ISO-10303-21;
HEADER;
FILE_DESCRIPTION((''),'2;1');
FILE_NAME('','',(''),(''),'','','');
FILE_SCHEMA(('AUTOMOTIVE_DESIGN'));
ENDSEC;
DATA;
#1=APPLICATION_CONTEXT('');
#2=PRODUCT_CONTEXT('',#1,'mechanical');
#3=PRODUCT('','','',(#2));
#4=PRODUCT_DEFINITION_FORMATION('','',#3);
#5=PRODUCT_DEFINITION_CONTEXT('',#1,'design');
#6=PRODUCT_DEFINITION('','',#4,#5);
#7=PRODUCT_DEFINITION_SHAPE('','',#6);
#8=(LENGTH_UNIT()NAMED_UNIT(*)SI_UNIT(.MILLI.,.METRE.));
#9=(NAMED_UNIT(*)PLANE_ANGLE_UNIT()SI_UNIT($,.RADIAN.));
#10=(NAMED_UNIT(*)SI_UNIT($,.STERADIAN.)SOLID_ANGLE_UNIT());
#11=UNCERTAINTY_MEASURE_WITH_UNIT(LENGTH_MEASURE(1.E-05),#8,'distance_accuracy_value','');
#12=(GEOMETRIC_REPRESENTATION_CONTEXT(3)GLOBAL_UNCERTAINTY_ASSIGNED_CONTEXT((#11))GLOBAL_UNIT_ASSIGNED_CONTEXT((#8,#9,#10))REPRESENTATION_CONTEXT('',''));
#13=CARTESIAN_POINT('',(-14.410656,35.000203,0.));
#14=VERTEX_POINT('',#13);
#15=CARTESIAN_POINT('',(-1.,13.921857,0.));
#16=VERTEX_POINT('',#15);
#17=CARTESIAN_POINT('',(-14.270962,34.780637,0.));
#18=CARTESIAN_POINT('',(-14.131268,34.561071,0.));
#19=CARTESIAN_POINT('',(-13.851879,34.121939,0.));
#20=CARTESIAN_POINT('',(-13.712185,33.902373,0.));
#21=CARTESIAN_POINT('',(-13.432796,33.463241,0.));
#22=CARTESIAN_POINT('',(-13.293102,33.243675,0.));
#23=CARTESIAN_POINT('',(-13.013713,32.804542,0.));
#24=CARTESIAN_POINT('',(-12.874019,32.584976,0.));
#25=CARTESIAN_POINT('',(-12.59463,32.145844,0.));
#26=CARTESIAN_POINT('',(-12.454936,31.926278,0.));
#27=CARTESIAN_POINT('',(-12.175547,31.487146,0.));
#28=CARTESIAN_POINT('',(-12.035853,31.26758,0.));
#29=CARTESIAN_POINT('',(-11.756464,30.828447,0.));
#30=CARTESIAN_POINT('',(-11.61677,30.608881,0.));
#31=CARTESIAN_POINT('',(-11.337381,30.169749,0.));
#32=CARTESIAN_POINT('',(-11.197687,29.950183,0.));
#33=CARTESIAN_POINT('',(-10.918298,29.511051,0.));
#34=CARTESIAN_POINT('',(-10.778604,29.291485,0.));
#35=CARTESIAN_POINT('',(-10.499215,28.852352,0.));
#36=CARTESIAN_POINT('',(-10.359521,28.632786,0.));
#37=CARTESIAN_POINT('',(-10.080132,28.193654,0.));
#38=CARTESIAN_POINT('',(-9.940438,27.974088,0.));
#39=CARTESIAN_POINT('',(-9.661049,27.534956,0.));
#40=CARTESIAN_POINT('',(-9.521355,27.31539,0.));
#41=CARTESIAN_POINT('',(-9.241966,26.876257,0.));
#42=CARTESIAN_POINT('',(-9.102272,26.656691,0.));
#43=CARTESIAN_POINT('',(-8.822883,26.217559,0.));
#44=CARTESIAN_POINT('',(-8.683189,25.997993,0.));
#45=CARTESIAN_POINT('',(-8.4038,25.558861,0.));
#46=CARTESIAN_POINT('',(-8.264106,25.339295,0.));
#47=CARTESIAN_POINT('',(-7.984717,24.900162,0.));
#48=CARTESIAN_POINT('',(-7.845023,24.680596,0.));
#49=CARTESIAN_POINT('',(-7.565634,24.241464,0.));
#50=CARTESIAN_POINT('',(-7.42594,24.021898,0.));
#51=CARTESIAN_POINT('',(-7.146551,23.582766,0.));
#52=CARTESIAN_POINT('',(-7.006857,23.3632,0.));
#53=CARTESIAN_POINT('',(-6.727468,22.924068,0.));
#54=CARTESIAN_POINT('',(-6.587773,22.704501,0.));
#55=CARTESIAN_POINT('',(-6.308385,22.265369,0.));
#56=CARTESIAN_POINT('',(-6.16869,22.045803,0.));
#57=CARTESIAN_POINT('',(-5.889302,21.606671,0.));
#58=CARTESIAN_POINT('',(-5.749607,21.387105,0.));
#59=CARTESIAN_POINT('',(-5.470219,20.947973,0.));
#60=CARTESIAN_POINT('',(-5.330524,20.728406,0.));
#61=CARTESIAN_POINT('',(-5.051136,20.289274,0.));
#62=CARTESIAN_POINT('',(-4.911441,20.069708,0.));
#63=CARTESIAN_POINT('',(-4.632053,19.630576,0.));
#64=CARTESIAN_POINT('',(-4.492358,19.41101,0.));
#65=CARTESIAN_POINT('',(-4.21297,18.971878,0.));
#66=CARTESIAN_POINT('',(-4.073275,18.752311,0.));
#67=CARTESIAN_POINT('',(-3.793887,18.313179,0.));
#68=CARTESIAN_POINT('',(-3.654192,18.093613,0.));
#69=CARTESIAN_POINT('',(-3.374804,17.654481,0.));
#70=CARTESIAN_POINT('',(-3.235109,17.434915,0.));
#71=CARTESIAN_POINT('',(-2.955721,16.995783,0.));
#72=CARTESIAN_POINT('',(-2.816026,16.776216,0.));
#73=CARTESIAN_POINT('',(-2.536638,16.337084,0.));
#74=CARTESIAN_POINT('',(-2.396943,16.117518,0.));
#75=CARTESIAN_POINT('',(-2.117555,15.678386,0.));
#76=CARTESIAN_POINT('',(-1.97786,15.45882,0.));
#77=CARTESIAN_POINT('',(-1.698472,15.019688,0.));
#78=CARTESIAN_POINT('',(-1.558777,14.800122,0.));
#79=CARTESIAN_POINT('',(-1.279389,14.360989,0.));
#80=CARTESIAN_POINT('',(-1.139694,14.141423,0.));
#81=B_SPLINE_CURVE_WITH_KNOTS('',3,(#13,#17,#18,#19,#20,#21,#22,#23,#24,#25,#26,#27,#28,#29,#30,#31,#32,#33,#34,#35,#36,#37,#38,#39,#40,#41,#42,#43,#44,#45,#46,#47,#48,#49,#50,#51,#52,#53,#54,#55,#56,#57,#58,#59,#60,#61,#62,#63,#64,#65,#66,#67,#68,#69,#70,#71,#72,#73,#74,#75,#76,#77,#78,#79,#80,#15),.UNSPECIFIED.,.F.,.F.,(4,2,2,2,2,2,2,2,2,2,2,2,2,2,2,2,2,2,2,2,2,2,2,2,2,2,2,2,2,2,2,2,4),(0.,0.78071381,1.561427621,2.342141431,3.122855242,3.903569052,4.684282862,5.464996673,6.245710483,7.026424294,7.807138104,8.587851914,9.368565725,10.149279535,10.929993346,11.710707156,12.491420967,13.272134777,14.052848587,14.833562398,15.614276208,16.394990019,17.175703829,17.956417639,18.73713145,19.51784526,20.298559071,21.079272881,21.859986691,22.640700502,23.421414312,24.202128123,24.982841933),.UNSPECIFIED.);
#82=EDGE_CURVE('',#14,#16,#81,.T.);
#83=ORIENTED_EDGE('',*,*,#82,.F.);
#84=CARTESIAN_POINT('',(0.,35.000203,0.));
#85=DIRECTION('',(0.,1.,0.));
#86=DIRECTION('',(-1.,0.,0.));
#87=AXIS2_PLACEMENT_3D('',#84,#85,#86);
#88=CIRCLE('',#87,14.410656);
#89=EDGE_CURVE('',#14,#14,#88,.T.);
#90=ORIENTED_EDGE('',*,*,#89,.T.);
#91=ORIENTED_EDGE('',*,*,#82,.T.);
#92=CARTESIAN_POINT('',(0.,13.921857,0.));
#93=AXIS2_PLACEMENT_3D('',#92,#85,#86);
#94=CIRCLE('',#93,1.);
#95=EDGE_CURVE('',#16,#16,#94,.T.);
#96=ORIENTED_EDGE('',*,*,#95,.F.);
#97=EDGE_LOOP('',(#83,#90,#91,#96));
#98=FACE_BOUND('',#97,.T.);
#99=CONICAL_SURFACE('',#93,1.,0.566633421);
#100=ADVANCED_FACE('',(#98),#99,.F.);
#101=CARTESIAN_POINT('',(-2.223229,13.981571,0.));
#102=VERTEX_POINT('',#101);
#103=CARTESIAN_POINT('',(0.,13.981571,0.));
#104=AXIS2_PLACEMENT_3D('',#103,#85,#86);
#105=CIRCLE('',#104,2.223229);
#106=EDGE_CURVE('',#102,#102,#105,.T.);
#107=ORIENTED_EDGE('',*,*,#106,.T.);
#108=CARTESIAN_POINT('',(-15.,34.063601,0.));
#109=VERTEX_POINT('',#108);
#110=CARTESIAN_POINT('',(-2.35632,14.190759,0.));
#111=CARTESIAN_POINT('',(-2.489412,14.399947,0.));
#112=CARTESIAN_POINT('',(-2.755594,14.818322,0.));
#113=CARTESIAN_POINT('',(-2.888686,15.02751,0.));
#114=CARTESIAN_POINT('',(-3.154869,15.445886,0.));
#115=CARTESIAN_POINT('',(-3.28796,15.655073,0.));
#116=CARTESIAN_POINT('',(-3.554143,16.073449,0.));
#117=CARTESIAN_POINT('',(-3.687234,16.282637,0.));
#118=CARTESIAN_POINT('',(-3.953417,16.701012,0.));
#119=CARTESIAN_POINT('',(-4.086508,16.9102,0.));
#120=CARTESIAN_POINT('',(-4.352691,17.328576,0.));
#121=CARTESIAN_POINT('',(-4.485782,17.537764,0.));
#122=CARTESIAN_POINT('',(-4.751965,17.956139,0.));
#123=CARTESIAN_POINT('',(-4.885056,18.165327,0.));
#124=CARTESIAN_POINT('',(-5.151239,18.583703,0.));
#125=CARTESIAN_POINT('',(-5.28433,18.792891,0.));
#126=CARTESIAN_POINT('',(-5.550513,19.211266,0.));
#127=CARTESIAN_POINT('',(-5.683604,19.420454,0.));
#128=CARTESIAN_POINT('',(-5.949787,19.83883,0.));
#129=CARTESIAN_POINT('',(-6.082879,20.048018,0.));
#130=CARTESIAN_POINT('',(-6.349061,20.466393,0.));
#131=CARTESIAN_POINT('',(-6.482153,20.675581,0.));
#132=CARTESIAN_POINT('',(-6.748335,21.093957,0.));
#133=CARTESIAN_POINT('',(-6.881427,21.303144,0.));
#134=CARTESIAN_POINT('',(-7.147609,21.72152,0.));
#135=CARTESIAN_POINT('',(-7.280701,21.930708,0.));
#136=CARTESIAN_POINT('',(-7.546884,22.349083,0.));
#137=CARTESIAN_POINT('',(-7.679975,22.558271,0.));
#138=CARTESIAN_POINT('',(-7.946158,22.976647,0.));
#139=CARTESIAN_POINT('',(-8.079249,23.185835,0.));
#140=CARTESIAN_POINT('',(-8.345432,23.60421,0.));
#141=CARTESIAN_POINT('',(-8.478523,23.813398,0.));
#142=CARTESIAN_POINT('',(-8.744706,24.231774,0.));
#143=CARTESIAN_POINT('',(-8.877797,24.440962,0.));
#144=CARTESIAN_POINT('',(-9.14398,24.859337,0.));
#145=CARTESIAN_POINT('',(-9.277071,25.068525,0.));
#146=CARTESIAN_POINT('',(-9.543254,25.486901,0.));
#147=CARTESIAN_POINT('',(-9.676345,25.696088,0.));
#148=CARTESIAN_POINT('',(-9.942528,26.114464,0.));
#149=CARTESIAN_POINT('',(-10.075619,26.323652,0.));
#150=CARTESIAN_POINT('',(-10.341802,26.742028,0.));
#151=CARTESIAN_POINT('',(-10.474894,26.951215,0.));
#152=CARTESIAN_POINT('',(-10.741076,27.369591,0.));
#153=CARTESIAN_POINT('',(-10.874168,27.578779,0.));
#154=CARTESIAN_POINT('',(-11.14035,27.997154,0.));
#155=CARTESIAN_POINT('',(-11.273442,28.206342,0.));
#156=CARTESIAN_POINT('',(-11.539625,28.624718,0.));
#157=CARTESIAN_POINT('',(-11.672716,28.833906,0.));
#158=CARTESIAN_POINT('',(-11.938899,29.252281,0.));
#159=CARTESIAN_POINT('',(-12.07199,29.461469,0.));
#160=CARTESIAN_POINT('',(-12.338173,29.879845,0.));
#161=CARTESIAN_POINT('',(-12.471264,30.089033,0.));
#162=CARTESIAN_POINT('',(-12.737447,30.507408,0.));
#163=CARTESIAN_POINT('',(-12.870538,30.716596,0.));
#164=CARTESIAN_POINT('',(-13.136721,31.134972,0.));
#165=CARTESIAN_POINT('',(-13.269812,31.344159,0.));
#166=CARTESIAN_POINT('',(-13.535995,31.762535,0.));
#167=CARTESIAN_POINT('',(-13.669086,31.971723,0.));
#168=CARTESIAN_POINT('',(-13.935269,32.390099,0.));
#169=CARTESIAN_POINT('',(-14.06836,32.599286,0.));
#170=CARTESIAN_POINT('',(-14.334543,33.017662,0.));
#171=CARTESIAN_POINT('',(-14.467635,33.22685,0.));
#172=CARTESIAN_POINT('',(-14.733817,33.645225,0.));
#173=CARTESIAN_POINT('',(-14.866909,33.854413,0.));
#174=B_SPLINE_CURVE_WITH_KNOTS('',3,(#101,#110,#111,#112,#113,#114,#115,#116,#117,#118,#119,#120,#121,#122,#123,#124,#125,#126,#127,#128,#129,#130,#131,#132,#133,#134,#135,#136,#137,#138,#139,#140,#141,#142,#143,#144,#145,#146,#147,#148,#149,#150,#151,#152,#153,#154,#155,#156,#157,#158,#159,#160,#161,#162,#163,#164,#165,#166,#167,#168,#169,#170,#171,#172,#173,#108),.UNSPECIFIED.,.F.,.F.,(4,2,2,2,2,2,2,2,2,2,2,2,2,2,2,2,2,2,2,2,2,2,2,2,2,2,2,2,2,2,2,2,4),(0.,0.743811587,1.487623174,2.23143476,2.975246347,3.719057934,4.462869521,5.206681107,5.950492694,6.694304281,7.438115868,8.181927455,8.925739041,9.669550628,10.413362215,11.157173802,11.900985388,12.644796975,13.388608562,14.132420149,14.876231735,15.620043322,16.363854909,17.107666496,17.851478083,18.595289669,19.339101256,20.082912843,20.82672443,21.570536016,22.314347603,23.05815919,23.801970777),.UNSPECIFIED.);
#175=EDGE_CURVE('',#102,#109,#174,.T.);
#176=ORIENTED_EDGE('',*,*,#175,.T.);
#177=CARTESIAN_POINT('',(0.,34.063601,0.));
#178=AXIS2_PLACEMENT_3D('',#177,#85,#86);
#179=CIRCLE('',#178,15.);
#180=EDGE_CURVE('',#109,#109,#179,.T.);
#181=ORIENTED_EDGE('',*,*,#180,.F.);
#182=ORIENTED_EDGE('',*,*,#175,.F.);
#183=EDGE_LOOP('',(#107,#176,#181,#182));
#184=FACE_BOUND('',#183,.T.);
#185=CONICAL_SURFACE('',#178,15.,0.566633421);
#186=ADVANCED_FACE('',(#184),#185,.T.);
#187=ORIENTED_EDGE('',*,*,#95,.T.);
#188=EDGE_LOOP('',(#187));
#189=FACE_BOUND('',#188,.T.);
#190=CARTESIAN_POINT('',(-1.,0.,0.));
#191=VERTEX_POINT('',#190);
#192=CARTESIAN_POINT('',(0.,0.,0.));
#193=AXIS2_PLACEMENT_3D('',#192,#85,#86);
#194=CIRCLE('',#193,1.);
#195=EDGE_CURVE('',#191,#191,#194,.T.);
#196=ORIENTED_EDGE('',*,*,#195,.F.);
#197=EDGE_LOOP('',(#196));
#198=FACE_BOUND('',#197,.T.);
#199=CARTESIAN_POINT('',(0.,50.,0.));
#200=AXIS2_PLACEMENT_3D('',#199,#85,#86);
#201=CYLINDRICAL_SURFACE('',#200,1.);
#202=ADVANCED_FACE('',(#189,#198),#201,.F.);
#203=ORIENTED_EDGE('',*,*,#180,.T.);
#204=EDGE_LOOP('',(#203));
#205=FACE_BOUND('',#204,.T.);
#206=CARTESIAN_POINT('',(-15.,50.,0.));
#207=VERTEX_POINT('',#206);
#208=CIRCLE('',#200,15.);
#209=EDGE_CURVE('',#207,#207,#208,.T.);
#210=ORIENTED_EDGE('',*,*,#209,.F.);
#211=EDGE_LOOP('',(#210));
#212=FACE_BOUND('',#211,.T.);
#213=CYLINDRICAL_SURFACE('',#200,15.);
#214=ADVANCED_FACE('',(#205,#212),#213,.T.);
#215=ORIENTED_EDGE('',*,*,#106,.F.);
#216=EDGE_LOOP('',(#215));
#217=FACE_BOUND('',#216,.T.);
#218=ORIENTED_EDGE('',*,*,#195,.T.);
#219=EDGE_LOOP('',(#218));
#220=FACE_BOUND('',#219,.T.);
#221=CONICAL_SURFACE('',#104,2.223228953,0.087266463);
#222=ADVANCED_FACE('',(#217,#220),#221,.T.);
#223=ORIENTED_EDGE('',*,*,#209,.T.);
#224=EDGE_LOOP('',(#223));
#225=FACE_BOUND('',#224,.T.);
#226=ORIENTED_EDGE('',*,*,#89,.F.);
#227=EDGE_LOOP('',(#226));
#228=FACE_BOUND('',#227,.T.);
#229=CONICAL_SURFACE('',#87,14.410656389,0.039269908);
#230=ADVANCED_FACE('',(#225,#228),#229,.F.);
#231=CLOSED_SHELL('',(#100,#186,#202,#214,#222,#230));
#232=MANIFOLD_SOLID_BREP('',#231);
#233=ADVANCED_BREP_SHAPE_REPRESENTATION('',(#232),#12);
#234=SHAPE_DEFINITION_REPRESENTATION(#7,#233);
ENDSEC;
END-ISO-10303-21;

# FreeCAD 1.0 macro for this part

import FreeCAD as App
import Part
import Sketcher
from FreeCAD import Vector
Q = App.Units.Quantity

doc = App.newDocument("Part")
body = doc.addObject("PartDesign::Body", "Body")

# Sketch on XY plane
sketch1 = doc.addObject("Sketcher::SketchObject", "Sketch")
body.addObject(sketch1)
sketch1.AttachmentSupport = (doc.XY_Plane, [""])
sketch1.MapMode = "FlatFace"
sketch1.addGeometry(Part.LineSegment(Vector(-15, 50, 0), Vector(-15, 34, 0)), False)
sketch1.addGeometry(Part.LineSegment(Vector(-15, 34, 0), Vector(-2, 14, 0)), False)
sketch1.addGeometry(Part.LineSegment(Vector(-2, 14, 0), Vector(-1, 0, 0)), False)
sketch1.addGeometry(Part.LineSegment(Vector(-1, 0, 0), Vector(-1, 14, 0)), False)
sketch1.addGeometry(Part.LineSegment(Vector(-1, 14, 0), Vector(-14, 35, 0)), False)
sketch1.addGeometry(Part.LineSegment(Vector(-14, 35, 0), Vector(-15, 50, 0)), False)
sketch1.addConstraint(Sketcher.Constraint("Coincident", 0, 2, 1, 1))
sketch1.addConstraint(Sketcher.Constraint("Coincident", 1, 2, 2, 1))
sketch1.addConstraint(Sketcher.Constraint("Coincident", 2, 2, 3, 1))
sketch1.addConstraint(Sketcher.Constraint("Coincident", 3, 2, 4, 1))
sketch1.addConstraint(Sketcher.Constraint("Coincident", 4, 2, 5, 1))
sketch1.addConstraint(Sketcher.Constraint("Coincident", 5, 2, 0, 1))
sketch1.addConstraint(Sketcher.Constraint("Vertical", 0))
sketch1.addConstraint(Sketcher.Constraint("Vertical", 3))
sketch1.addConstraint(Sketcher.Constraint("PointOnObject", 2, 2, -1))
sketch1.addConstraint(Sketcher.Constraint("Parallel", 1, 4))
sketch1.addConstraint(Sketcher.Constraint("Angle", 2, Q("-85 deg")))
sketch1.addConstraint(Sketcher.Constraint("DistanceX", 0, 2, -1, 1, Q("15 mm")))
sketch1.addConstraint(Sketcher.Constraint("DistanceX", 2, 2, -1, 1, Q("1 mm")))
sketch1.addConstraint(Sketcher.Constraint("DistanceY", -1, 1, 5, 2, Q("50 mm")))
sketch1.addConstraint(Sketcher.Constraint("Angle", 5, Q("92.25 deg")))
sketch1.addConstraint(Sketcher.Constraint("DistanceY", 0, 2, 0, 1, Q("15.936399 mm")))
sketch1.addConstraint(Sketcher.Constraint("Distance", 1, Q("23.801971 mm")))
sketch1.addConstraint(Sketcher.Constraint("Distance", 4, Q("24.982842 mm")))
revolution = doc.addObject("PartDesign::Revolution", "Revolution")
body.addObject(revolution)
revolution.Profile = sketch1
revolution.ReferenceAxis = (sketch1, ["V_Axis"])
revolution.Angle = 360

doc.recompute()
